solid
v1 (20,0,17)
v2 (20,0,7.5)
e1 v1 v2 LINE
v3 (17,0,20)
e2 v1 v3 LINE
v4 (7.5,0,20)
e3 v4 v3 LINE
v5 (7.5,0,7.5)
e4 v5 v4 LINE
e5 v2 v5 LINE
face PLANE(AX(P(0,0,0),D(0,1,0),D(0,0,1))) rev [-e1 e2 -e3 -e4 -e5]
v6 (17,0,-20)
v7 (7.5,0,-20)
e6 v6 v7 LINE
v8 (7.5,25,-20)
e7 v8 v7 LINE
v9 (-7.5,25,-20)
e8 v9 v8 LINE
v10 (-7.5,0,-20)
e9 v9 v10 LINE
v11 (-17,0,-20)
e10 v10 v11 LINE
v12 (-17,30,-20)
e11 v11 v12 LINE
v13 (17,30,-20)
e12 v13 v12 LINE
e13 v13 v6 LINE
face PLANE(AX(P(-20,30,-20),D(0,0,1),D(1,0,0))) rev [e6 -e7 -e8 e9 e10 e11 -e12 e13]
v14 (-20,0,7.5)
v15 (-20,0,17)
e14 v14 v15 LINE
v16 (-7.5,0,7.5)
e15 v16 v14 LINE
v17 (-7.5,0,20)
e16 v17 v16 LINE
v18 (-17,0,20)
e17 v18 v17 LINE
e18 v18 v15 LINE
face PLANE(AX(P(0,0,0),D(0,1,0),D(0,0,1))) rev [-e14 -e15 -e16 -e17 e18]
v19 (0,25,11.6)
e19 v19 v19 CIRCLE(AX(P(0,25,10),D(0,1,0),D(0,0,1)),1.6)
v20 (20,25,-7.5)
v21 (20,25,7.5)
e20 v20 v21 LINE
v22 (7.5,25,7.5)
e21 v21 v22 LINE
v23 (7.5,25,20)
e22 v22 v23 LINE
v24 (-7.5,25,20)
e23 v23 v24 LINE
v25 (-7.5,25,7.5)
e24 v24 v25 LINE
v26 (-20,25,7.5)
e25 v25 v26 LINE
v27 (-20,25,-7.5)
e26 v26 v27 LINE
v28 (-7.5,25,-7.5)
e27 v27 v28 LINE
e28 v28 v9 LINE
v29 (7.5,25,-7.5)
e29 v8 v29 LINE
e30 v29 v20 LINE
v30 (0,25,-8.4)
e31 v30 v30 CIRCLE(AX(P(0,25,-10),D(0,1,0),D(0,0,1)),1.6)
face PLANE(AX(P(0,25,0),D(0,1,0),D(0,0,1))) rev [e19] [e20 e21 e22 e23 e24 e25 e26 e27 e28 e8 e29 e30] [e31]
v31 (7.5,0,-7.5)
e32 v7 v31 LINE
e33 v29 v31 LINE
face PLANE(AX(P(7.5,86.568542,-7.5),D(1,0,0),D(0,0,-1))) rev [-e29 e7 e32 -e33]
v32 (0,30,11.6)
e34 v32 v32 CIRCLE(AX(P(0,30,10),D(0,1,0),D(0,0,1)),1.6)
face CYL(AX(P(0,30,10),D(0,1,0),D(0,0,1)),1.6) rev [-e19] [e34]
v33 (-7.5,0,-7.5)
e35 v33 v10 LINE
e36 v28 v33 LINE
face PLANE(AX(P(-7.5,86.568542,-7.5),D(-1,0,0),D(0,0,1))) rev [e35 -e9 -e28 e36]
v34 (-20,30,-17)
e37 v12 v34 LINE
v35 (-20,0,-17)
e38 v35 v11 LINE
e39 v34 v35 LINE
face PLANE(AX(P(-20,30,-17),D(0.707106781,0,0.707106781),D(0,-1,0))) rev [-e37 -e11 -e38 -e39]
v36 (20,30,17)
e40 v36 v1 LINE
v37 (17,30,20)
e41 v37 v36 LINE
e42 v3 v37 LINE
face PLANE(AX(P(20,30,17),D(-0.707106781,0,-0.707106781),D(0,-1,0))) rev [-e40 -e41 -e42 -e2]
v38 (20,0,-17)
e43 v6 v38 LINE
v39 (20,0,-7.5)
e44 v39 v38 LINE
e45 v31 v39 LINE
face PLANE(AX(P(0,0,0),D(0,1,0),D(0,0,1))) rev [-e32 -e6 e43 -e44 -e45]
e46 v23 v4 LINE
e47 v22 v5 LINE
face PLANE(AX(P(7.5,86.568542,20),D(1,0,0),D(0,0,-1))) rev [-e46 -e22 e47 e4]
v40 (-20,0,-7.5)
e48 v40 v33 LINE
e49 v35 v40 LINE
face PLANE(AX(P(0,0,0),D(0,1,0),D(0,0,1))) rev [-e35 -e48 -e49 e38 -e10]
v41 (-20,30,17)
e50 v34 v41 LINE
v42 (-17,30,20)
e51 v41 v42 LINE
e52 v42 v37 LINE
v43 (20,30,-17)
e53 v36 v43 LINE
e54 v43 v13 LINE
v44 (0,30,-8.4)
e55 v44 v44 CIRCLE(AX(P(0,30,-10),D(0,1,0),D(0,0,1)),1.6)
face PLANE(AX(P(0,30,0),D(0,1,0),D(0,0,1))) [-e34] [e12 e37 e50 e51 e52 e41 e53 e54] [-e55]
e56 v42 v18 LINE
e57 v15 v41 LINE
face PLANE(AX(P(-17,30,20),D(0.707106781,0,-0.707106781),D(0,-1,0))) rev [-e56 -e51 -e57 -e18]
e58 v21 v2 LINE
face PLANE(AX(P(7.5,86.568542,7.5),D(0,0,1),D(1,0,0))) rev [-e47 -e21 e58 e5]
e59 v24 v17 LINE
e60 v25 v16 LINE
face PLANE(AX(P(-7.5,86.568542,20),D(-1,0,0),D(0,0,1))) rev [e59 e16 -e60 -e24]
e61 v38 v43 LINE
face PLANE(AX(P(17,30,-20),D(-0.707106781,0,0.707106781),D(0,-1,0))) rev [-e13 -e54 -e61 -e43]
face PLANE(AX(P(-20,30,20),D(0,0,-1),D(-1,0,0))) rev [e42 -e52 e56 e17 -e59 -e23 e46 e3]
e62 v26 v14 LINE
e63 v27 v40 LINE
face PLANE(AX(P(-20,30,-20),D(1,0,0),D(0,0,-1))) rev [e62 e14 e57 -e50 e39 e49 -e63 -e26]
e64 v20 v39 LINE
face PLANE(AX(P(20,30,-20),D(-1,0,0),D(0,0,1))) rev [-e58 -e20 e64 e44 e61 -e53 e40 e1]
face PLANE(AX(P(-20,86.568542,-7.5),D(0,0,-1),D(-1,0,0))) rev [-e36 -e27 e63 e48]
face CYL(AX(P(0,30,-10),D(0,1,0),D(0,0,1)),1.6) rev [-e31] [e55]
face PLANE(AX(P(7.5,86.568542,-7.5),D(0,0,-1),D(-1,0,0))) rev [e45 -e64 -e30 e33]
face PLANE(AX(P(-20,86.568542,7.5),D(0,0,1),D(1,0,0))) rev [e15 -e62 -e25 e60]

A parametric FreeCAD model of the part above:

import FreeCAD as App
import Part
import Sketcher
from FreeCAD import Vector
Q = App.Units.Quantity


def edges_at(feature, points):
    """Names of the edges that pass closest to the given points."""
    edges = feature.Shape.Edges
    near = lambda p: min(range(len(edges)), key=lambda i: edges[i].distToShape(Part.Vertex(*p))[0])
    return sorted({f"Edge{near(p) + 1}" for p in points})


def add_polygon(sketch, points):
    """Adds a closed chain of lines whose ends are joined by coincident constraints."""
    first, n = sketch.GeometryCount, len(points)
    for a, b in zip(points, points[1:] + points[:1]):
        sketch.addGeometry(Part.LineSegment(App.Vector(*a, 0), App.Vector(*b, 0)), False)
    for i in range(n):
        sketch.addConstraint(Sketcher.Constraint("Coincident", first + i, 2, first + (i + 1) % n, 1))

doc = App.newDocument("Part")
body = doc.addObject("PartDesign::Body", "Body")

# Sketch on XZ plane
sketch1 = body.newObject("Sketcher::SketchObject", "Sketch")
sketch1.AttachmentSupport = (doc.getObject("XZ_Plane"), [""])
sketch1.MapMode = "FlatFace"
add_polygon(sketch1, [(-20, -20), (-20, 20), (20, 20), (20, -20)])  # lines 0-3
sketch1.addConstraint([
    Sketcher.Constraint("Vertical", 0),
    Sketcher.Constraint("Horizontal", 1),
    Sketcher.Constraint("Vertical", 2),
    Sketcher.Constraint("Horizontal", 3),
    Sketcher.Constraint("Symmetric", 0, 2, 2, 2, -1, 1),
    Sketcher.Constraint("Equal", 3, 0),
    Sketcher.Constraint("DistanceX", 1, 1, 1, 2, Q("40 mm")),
])
pad1 = body.newObject("PartDesign::Pad", "Pad")
pad1.Profile = sketch1
pad1.Length = 30
pad1.Reversed = True
doc.recompute()

chamfer = body.newObject("PartDesign::Chamfer", "Chamfer")
chamfer.Base = (pad1, edges_at(pad1, [
    (-20, 15, -20),
    (20, 15, -20),
    (20, 15, 20),
    (-20, 15, 20),
]))
chamfer.Size = 3

# Sketch on XZ plane
sketch2 = body.newObject("Sketcher::SketchObject", "Sketch001")
sketch2.AttachmentSupport = (doc.getObject("XZ_Plane"), [""])
sketch2.MapMode = "FlatFace"
add_polygon(sketch2, [(-7.5, 7.5), (-20, 7.5), (-20, -7.5), (-7.5, -7.5), (-7.5, -20), (7.5, -20), (7.5, -7.5), (20, -7.5), (20, 7.5), (7.5, 7.5), (7.5, 20), (-7.5, 20)])  # lines 0-11
sketch2.addConstraint([
    Sketcher.Constraint("Horizontal", 0),
    Sketcher.Constraint("Vertical", 1),
    Sketcher.Constraint("Horizontal", 2),
    Sketcher.Constraint("Vertical", 3),
    Sketcher.Constraint("Horizontal", 4),
    Sketcher.Constraint("Vertical", 5),
    Sketcher.Constraint("Horizontal", 6),
    Sketcher.Constraint("Vertical", 7),
    Sketcher.Constraint("Horizontal", 8),
    Sketcher.Constraint("Vertical", 9),
    Sketcher.Constraint("Horizontal", 10),
    Sketcher.Constraint("Vertical", 11),
    Sketcher.Constraint("Symmetric", 0, 2, 6, 2, -1, 1),
    Sketcher.Constraint("Symmetric", 2, 2, 8, 2, -1, 1),
    Sketcher.Constraint("Symmetric", 4, 2, 10, 2, -1, 1),
    Sketcher.Constraint("Symmetric", 2, 2, 5, 2, -2),
    Sketcher.Constraint("Equal", 10, 1),
    Sketcher.Constraint("Equal", 8, 3),
    Sketcher.Constraint("DistanceX", 4, 1, 4, 2, Q("15 mm")),
    Sketcher.Constraint("DistanceX", 0, 2, 0, 1, Q("12.5 mm")),
])
pocket1 = body.newObject("PartDesign::Pocket", "Pocket")
pocket1.Profile = sketch2
pocket1.Length = 25

# Sketch on XZ plane
sketch3 = body.newObject("Sketcher::SketchObject", "Sketch002")
sketch3.AttachmentSupport = (doc.getObject("XZ_Plane"), [""])
sketch3.MapMode = "FlatFace"
sketch3.AttachmentOffset = App.Placement(Vector(0, 0, -30), App.Rotation())
sketch3.addGeometry([
    Part.Circle(Vector(0, -10, 0), Vector(0, 0, 1), 1.6),
    Part.Circle(Vector(0, 10, 0), Vector(0, 0, 1), 1.6),
], False)
sketch3.addConstraint([
    Sketcher.Constraint("Equal", 0, 1),
    Sketcher.Constraint("Symmetric", 0, 3, 1, 3, -1, 1),
    Sketcher.Constraint("PointOnObject", 0, 3, -2),
    Sketcher.Constraint("Diameter", 0, Q("3.2 mm")),
    Sketcher.Constraint("DistanceY", 0, 3, -1, 1, Q("10 mm")),
])
doc.recompute()
hole = body.newObject("PartDesign::Hole", "Hole")
hole.Profile = sketch3
hole.ThreadType = "None"
hole.Diameter = 3.2
hole.DepthType = "ThroughAll"
hole.Reversed = True

doc.recompute()
